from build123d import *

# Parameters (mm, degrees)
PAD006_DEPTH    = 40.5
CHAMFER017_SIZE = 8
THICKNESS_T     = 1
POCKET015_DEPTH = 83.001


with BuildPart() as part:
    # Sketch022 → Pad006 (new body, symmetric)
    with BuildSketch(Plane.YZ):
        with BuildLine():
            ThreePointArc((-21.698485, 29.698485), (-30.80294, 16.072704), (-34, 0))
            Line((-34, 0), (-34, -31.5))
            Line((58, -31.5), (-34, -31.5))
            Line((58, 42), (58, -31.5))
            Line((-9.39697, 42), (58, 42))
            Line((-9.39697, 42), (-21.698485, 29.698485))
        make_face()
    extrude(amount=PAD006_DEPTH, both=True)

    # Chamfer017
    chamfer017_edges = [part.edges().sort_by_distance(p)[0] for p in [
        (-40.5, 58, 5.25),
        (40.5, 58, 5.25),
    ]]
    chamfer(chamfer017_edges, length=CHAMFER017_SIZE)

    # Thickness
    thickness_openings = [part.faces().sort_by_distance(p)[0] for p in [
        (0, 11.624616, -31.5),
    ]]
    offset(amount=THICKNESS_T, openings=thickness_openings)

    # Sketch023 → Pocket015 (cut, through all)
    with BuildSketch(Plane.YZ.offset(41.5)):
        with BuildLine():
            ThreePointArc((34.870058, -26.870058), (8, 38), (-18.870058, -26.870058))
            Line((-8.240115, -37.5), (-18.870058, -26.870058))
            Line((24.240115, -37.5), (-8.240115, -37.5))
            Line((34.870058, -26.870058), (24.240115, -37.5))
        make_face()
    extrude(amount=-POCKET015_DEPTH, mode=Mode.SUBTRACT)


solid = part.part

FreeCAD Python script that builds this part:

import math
import FreeCAD as App
import Part
import Sketcher

V = App.Vector
Q = App.Units.Quantity


def edges_at(feature, points):
    """Names of the edges that pass closest to the given points."""
    edges = feature.Shape.Edges
    near = lambda p: min(range(len(edges)), key=lambda i: edges[i].distToShape(Part.Vertex(*p))[0])
    return sorted({f"Edge{near(p) + 1}" for p in points})


def faces_at(feature, points):
    """Names of the faces that lie closest to the given points."""
    faces = feature.Shape.Faces
    near = lambda p: min(range(len(faces)), key=lambda i: faces[i].distToShape(Part.Vertex(*p))[0])
    return sorted({f"Face{near(p) + 1}" for p in points})

doc = App.newDocument("Part")
body = doc.addObject("PartDesign::Body", "Body")

# Sketch on YZ plane
sketch1 = doc.addObject("Sketcher::SketchObject", "Sketch")
body.addObject(sketch1)
sketch1.AttachmentSupport = (doc.YZ_Plane, [""])
sketch1.MapMode = "FlatFace"
sketch1.addGeometry(Part.ArcOfCircle(Part.Circle(V(8, 0, 0), V(0, 0, 1), 42), math.radians(135), math.radians(180)), False)
sketch1.addGeometry(Part.LineSegment(V(-34, 0, 0), V(-34, -32, 0)), False)
sketch1.addGeometry(Part.LineSegment(V(-34, -32, 0), V(58, -32, 0)), False)
sketch1.addGeometry(Part.LineSegment(V(58, -32, 0), V(58, 42, 0)), False)
sketch1.addGeometry(Part.LineSegment(V(58, 42, 0), V(-9, 42, 0)), False)
sketch1.addGeometry(Part.LineSegment(V(-9, 42, 0), V(-22, 30, 0)), False)
sketch1.addConstraint(Sketcher.Constraint("Tangent", 0, 2, 1, 1))
sketch1.addConstraint(Sketcher.Constraint("Coincident", 1, 2, 2, 1))
sketch1.addConstraint(Sketcher.Constraint("Coincident", 2, 2, 3, 1))
sketch1.addConstraint(Sketcher.Constraint("Coincident", 3, 2, 4, 1))
sketch1.addConstraint(Sketcher.Constraint("Coincident", 4, 2, 5, 1))
sketch1.addConstraint(Sketcher.Constraint("Tangent", 5, 2, 0, 1))
sketch1.addConstraint(Sketcher.Constraint("Vertical", 1))
sketch1.addConstraint(Sketcher.Constraint("Horizontal", 2))
sketch1.addConstraint(Sketcher.Constraint("Vertical", 3))
sketch1.addConstraint(Sketcher.Constraint("Horizontal", 4))
sketch1.addConstraint(Sketcher.Constraint("PointOnObject", 0, 2, -1))
sketch1.addConstraint(Sketcher.Constraint("DistanceX", 2, 1, 2, 2, Q("92 mm")))
sketch1.addConstraint(Sketcher.Constraint("Angle", 5, Q("-135 deg")))
sketch1.addConstraint(Sketcher.Constraint("DistanceY", 1, 2, 1, 1, Q("31.5 mm")))
sketch1.addConstraint(Sketcher.Constraint("DistanceY", 3, 1, 3, 2, Q("73.5 mm")))
sketch1.addConstraint(Sketcher.Constraint("DistanceX", 0, 2, -1, 1, Q("34 mm")))
sketch1.addConstraint(Sketcher.Constraint("Radius", 0, Q("42.000007 mm")))
pad1 = doc.addObject("PartDesign::Pad", "Pad")
body.addObject(pad1)
pad1.Profile = sketch1
pad1.Length = 81
pad1.Midplane = True
doc.recompute()

chamfer = doc.addObject("PartDesign::Chamfer", "Chamfer")
body.addObject(chamfer)
chamfer.Base = (pad1, edges_at(pad1, [(-40.5, 58, 5.25), (40.5, 58, 5.25)]))
chamfer.Size = 8
doc.recompute()

thickness = doc.addObject("PartDesign::Thickness", "Thickness")
body.addObject(thickness)
thickness.Base = (chamfer, faces_at(chamfer, [(0, 12, -31.5)]))
thickness.Value = 1
thickness.Reversed = False
thickness.Join = "Arc"

# Sketch on YZ plane
sketch2 = doc.addObject("Sketcher::SketchObject", "Sketch001")
body.addObject(sketch2)
sketch2.AttachmentSupport = (doc.YZ_Plane, [""])
sketch2.MapMode = "FlatFace"
sketch2.AttachmentOffset = App.Placement(V(0, 0, 41.5), App.Rotation())
sketch2.addGeometry(Part.ArcOfCircle(Part.Circle(V(8, 0, 0), V(0, 0, 1), 38), math.radians(-45), math.radians(225)), False)
sketch2.addGeometry(Part.LineSegment(V(-19, -27, 0), V(-8, -38, 0)), False)
sketch2.addGeometry(Part.LineSegment(V(-8, -38, 0), V(24, -38, 0)), False)
sketch2.addGeometry(Part.LineSegment(V(24, -38, 0), V(35, -27, 0)), False)
sketch2.addConstraint(Sketcher.Constraint("Tangent", 0, 2, 1, 1))
sketch2.addConstraint(Sketcher.Constraint("Coincident", 1, 2, 2, 1))
sketch2.addConstraint(Sketcher.Constraint("Coincident", 2, 2, 3, 1))
sketch2.addConstraint(Sketcher.Constraint("Tangent", 3, 2, 0, 1))
sketch2.addConstraint(Sketcher.Constraint("Horizontal", 2))
sketch2.addConstraint(Sketcher.Constraint("PointOnObject", 0, 3, -1))
sketch2.addConstraint(Sketcher.Constraint("Perpendicular", 1, 3))
sketch2.addConstraint(Sketcher.Constraint("Horizontal", 0, 2, 3, 2))
sketch2.addConstraint(Sketcher.Constraint("Radius", 0, Q("38 mm")))
sketch2.addConstraint(Sketcher.Constraint("DistanceX", -1, 1, 0, 3, Q("8 mm")))
sketch2.addConstraint(Sketcher.Constraint("DistanceY", 1, 2, -1, 1, Q("37.5 mm")))
pocket1 = doc.addObject("PartDesign::Pocket", "Pocket")
body.addObject(pocket1)
pocket1.Profile = sketch2
pocket1.Type = "ThroughAll"

doc.recompute()
